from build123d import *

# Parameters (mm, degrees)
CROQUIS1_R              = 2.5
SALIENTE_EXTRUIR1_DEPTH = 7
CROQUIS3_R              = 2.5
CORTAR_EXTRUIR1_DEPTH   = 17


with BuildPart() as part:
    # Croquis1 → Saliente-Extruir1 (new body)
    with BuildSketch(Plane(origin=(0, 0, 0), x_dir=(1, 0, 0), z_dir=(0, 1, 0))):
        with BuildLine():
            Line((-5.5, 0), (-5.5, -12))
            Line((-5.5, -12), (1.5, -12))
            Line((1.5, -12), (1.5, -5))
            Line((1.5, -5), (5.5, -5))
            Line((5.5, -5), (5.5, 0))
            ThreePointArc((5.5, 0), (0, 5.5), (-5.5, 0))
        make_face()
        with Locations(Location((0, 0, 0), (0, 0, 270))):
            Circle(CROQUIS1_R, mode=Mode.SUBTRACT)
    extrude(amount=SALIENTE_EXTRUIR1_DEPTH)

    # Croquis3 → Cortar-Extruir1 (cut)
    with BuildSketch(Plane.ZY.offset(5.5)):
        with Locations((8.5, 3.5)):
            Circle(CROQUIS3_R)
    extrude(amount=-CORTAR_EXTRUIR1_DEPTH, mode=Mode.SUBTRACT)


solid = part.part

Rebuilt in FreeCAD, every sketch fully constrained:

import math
import FreeCAD as App
import Part
import Sketcher

V = App.Vector
Q = App.Units.Quantity

doc = App.newDocument("Part")
body = doc.addObject("PartDesign::Body", "Body")

# Sketch on XZ plane
sketch1 = body.newObject("Sketcher::SketchObject", "Sketch")
sketch1.AttachmentSupport = (doc.getObject("XZ_Plane"), [""])
sketch1.MapMode = "FlatFace"
sketch1.addGeometry([
    Part.LineSegment(V(-5.5, 0, 0), V(-5.5, 12, 0)),  # 0
    Part.LineSegment(V(-5.5, 12, 0), V(1.5, 12, 0)),  # 1
    Part.LineSegment(V(1.5, 12, 0), V(1.5, 5, 0)),  # 2
    Part.LineSegment(V(1.5, 5, 0), V(5.5, 5, 0)),  # 3
    Part.LineSegment(V(5.5, 5, 0), V(5.5, 0, 0)),  # 4
    Part.ArcOfCircle(Part.Circle(V(0, 0, 0), V(0, 0, 1), 5.5), math.radians(180), math.radians(360)),  # 5
    Part.Circle(V(0, 0, 0), V(0, 0, 1), 2.5),  # 6
], False)
sketch1.addConstraint([
    Sketcher.Constraint("Coincident", 0, 2, 1, 1),
    Sketcher.Constraint("Coincident", 1, 2, 2, 1),
    Sketcher.Constraint("Coincident", 2, 2, 3, 1),
    Sketcher.Constraint("Coincident", 3, 2, 4, 1),
    Sketcher.Constraint("Tangent", 4, 2, 5, 2),
    Sketcher.Constraint("Tangent", 5, 1, 0, 1),
    Sketcher.Constraint("Vertical", 0),
    Sketcher.Constraint("Horizontal", 1),
    Sketcher.Constraint("Vertical", 2),
    Sketcher.Constraint("Horizontal", 3),
    Sketcher.Constraint("Vertical", 4),
    Sketcher.Constraint("Coincident", 5, 3, -1, 1),
    Sketcher.Constraint("Coincident", 6, 3, -1, 1),
    Sketcher.Constraint("Equal", 1, 2),
    Sketcher.Constraint("Diameter", 6, Q("5 mm")),
    Sketcher.Constraint("Radius", 5, Q("5.5 mm")),
    Sketcher.Constraint("DistanceX", 1, 1, 1, 2, Q("7 mm")),
    Sketcher.Constraint("DistanceY", 0, 1, 0, 2, Q("12 mm")),
])
pad1 = body.newObject("PartDesign::Pad", "Pad")
pad1.Profile = sketch1
pad1.Length = 7
pad1.Reversed = True

# Sketch on YZ plane
sketch2 = body.newObject("Sketcher::SketchObject", "Sketch001")
sketch2.AttachmentSupport = (doc.getObject("YZ_Plane"), [""])
sketch2.MapMode = "FlatFace"
sketch2.AttachmentOffset = App.Placement(V(0, 0, -5.5), App.Rotation())
sketch2.addGeometry(Part.Circle(V(3.5, 8.5, 0), V(0, 0, 1), 2.5), False)
sketch2.addConstraint([
    Sketcher.Constraint("Diameter", 0, Q("5 mm")),
    Sketcher.Constraint("DistanceX", -1, 1, 0, 3, Q("3.5 mm")),
    Sketcher.Constraint("DistanceY", -1, 1, 0, 3, Q("8.5 mm")),
])
pocket1 = body.newObject("PartDesign::Pocket", "Pocket")
pocket1.Profile = sketch2
pocket1.Length = 17
pocket1.Reversed = True

doc.recompute()
